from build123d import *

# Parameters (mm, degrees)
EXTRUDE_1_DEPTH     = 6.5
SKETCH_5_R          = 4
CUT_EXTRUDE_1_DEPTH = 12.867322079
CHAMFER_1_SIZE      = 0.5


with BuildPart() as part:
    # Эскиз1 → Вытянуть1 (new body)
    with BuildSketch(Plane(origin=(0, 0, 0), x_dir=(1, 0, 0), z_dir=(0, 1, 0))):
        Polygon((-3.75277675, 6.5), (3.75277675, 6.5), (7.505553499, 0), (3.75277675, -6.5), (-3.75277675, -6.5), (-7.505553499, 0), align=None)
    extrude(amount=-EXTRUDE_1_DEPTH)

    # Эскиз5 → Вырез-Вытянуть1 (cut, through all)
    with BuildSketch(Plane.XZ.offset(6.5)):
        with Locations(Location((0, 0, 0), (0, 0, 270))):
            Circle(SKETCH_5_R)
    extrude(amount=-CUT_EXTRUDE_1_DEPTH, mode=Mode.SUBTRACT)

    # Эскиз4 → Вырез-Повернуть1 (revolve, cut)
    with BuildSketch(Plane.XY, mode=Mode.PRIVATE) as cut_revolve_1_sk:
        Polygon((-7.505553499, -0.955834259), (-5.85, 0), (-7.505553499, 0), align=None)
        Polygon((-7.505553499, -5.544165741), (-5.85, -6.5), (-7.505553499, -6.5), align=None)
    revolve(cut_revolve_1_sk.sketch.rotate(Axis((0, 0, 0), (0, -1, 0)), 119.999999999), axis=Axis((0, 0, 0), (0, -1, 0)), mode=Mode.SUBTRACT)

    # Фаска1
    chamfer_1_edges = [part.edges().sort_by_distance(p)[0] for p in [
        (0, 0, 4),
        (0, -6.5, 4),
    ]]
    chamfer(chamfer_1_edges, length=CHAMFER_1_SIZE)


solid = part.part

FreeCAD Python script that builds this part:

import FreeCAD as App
import Part
import Sketcher
Q = App.Units.Quantity


def edges_at(feature, points):
    """Names of the edges that pass closest to the given points."""
    edges = feature.Shape.Edges
    near = lambda p: min(range(len(edges)), key=lambda i: edges[i].distToShape(Part.Vertex(*p))[0])
    return sorted({f"Edge{near(p) + 1}" for p in points})


def add_polygon(sketch, points):
    """Adds a closed chain of lines whose ends are joined by coincident constraints."""
    first, n = sketch.GeometryCount, len(points)
    for a, b in zip(points, points[1:] + points[:1]):
        sketch.addGeometry(Part.LineSegment(App.Vector(*a, 0), App.Vector(*b, 0)), False)
    for i in range(n):
        sketch.addConstraint(Sketcher.Constraint("Coincident", first + i, 2, first + (i + 1) % n, 1))

doc = App.newDocument("Part")
params = doc.addObject("Spreadsheet::Sheet", "Params")
for row, (alias, value) in enumerate([
    ("pad1_length", "6.5 mm"),
    ("sketch2_diameter", "8 mm"),
    ("groove_angle", "360 deg"),
    ("chamfer_size", "0.5 mm"),
], start=1):
    params.set(f"A{row}", alias)
    params.set(f"B{row}", "=" + value)
    params.setAlias(f"B{row}", alias)

body = doc.addObject("PartDesign::Body", "Body")

# Sketch on XZ plane
sketch1 = doc.addObject("Sketcher::SketchObject", "Sketch")
body.addObject(sketch1)
sketch1.AttachmentSupport = (doc.XZ_Plane, [""])
sketch1.MapMode = "FlatFace"
add_polygon(sketch1, [(4, -6), (-4, -6), (-8, 0), (-4, 6), (4, 6), (8, 0)])  # lines 0-5
sketch1.addConstraint(Sketcher.Constraint("Horizontal", 0))
sketch1.addConstraint(Sketcher.Constraint("Horizontal", 3))
sketch1.addConstraint(Sketcher.Constraint("Symmetric", 0, 2, 3, 2, -1, 1))
sketch1.addConstraint(Sketcher.Constraint("Symmetric", 1, 2, 4, 2, -1, 1))
sketch1.addConstraint(Sketcher.Constraint("PointOnObject", 1, 2, -1))
sketch1.addConstraint(Sketcher.Constraint("Parallel", 2, 5))
sketch1.addConstraint(Sketcher.Constraint("Vertical", 0, 2, 2, 2))
sketch1.addConstraint(Sketcher.Constraint("Angle", 1, Q("120 deg")))
sketch1.addConstraint(Sketcher.Constraint("DistanceY", 0, 2, 2, 2, Q("13 mm")))
sketch1.addConstraint(Sketcher.Constraint("DistanceX", 0, 2, 0, 1, Q("7.505554 mm")))
pad1 = doc.addObject("PartDesign::Pad", "Pad")
body.addObject(pad1)
pad1.Profile = sketch1
pad1.setExpression("Length", "Params.pad1_length")

# Sketch on XZ plane
sketch2 = doc.addObject("Sketcher::SketchObject", "Sketch001")
body.addObject(sketch2)
sketch2.AttachmentSupport = (doc.XZ_Plane, [""])
sketch2.MapMode = "FlatFace"
sketch2.AttachmentOffset = App.Placement(App.Vector(0, 0, 6.5), App.Rotation())
sketch2.addGeometry(Part.Circle(App.Vector(0, 0, 0), App.Vector(0, 0, 1), 4), False)
sketch2.addConstraint(Sketcher.Constraint("Coincident", 0, 3, -1, 1))
sketch2.addConstraint(Sketcher.Constraint("Diameter", 0, Q("8 mm")))
sketch2.setExpression("Constraints[1]", "Params.sketch2_diameter")
pocket1 = doc.addObject("PartDesign::Pocket", "Pocket")
body.addObject(pocket1)
pocket1.Profile = sketch2
pocket1.Type = "ThroughAll"

# Sketch on XY plane
sketch3 = doc.addObject("Sketcher::SketchObject", "Sketch002")
body.addObject(sketch3)
sketch3.AttachmentSupport = (doc.XY_Plane, [""])
sketch3.MapMode = "FlatFace"
add_polygon(sketch3, [(-7.5, -1), (-5.8, 0), (-7.5, 0)])  # lines 0-2
add_polygon(sketch3, [(-5.8, -6.5), (-7.5, -5.5), (-7.5, -6.5)])  # lines 3-5
sketch3.addConstraint(Sketcher.Constraint("Horizontal", 1))
sketch3.addConstraint(Sketcher.Constraint("Vertical", 2))
sketch3.addConstraint(Sketcher.Constraint("Vertical", 4))
sketch3.addConstraint(Sketcher.Constraint("Horizontal", 5))
sketch3.addConstraint(Sketcher.Constraint("PointOnObject", 0, 2, -1))
sketch3.addConstraint(Sketcher.Constraint("Vertical", 2, 2, 3, 2))
sketch3.addConstraint(Sketcher.Constraint("Vertical", 0, 2, 5, 2))
sketch3.addConstraint(Sketcher.Constraint("Equal", 2, 4))
sketch3.addConstraint(Sketcher.Constraint("Angle", 0, Q("30 deg")))
sketch3.addConstraint(Sketcher.Constraint("DistanceY", 4, 2, -1, 1, Q("6.5 mm")))
sketch3.addConstraint(Sketcher.Constraint("DistanceX", 0, 2, -1, 1, Q("5.85 mm")))
sketch3.addConstraint(Sketcher.Constraint("Distance", 0, Q("1.911669 mm")))
groove = doc.addObject("PartDesign::Groove", "Groove")
body.addObject(groove)
groove.Profile = sketch3
groove.ReferenceAxis = (sketch3, ["V_Axis"])
groove.setExpression("Angle", "Params.groove_angle")
doc.recompute()

chamfer = doc.addObject("PartDesign::Chamfer", "Chamfer")
body.addObject(chamfer)
chamfer.Base = (groove, edges_at(groove, [(0, 0, 4), (0, -6.5, 4)]))
chamfer.setExpression("Size", "Params.chamfer_size")

doc.recompute()
